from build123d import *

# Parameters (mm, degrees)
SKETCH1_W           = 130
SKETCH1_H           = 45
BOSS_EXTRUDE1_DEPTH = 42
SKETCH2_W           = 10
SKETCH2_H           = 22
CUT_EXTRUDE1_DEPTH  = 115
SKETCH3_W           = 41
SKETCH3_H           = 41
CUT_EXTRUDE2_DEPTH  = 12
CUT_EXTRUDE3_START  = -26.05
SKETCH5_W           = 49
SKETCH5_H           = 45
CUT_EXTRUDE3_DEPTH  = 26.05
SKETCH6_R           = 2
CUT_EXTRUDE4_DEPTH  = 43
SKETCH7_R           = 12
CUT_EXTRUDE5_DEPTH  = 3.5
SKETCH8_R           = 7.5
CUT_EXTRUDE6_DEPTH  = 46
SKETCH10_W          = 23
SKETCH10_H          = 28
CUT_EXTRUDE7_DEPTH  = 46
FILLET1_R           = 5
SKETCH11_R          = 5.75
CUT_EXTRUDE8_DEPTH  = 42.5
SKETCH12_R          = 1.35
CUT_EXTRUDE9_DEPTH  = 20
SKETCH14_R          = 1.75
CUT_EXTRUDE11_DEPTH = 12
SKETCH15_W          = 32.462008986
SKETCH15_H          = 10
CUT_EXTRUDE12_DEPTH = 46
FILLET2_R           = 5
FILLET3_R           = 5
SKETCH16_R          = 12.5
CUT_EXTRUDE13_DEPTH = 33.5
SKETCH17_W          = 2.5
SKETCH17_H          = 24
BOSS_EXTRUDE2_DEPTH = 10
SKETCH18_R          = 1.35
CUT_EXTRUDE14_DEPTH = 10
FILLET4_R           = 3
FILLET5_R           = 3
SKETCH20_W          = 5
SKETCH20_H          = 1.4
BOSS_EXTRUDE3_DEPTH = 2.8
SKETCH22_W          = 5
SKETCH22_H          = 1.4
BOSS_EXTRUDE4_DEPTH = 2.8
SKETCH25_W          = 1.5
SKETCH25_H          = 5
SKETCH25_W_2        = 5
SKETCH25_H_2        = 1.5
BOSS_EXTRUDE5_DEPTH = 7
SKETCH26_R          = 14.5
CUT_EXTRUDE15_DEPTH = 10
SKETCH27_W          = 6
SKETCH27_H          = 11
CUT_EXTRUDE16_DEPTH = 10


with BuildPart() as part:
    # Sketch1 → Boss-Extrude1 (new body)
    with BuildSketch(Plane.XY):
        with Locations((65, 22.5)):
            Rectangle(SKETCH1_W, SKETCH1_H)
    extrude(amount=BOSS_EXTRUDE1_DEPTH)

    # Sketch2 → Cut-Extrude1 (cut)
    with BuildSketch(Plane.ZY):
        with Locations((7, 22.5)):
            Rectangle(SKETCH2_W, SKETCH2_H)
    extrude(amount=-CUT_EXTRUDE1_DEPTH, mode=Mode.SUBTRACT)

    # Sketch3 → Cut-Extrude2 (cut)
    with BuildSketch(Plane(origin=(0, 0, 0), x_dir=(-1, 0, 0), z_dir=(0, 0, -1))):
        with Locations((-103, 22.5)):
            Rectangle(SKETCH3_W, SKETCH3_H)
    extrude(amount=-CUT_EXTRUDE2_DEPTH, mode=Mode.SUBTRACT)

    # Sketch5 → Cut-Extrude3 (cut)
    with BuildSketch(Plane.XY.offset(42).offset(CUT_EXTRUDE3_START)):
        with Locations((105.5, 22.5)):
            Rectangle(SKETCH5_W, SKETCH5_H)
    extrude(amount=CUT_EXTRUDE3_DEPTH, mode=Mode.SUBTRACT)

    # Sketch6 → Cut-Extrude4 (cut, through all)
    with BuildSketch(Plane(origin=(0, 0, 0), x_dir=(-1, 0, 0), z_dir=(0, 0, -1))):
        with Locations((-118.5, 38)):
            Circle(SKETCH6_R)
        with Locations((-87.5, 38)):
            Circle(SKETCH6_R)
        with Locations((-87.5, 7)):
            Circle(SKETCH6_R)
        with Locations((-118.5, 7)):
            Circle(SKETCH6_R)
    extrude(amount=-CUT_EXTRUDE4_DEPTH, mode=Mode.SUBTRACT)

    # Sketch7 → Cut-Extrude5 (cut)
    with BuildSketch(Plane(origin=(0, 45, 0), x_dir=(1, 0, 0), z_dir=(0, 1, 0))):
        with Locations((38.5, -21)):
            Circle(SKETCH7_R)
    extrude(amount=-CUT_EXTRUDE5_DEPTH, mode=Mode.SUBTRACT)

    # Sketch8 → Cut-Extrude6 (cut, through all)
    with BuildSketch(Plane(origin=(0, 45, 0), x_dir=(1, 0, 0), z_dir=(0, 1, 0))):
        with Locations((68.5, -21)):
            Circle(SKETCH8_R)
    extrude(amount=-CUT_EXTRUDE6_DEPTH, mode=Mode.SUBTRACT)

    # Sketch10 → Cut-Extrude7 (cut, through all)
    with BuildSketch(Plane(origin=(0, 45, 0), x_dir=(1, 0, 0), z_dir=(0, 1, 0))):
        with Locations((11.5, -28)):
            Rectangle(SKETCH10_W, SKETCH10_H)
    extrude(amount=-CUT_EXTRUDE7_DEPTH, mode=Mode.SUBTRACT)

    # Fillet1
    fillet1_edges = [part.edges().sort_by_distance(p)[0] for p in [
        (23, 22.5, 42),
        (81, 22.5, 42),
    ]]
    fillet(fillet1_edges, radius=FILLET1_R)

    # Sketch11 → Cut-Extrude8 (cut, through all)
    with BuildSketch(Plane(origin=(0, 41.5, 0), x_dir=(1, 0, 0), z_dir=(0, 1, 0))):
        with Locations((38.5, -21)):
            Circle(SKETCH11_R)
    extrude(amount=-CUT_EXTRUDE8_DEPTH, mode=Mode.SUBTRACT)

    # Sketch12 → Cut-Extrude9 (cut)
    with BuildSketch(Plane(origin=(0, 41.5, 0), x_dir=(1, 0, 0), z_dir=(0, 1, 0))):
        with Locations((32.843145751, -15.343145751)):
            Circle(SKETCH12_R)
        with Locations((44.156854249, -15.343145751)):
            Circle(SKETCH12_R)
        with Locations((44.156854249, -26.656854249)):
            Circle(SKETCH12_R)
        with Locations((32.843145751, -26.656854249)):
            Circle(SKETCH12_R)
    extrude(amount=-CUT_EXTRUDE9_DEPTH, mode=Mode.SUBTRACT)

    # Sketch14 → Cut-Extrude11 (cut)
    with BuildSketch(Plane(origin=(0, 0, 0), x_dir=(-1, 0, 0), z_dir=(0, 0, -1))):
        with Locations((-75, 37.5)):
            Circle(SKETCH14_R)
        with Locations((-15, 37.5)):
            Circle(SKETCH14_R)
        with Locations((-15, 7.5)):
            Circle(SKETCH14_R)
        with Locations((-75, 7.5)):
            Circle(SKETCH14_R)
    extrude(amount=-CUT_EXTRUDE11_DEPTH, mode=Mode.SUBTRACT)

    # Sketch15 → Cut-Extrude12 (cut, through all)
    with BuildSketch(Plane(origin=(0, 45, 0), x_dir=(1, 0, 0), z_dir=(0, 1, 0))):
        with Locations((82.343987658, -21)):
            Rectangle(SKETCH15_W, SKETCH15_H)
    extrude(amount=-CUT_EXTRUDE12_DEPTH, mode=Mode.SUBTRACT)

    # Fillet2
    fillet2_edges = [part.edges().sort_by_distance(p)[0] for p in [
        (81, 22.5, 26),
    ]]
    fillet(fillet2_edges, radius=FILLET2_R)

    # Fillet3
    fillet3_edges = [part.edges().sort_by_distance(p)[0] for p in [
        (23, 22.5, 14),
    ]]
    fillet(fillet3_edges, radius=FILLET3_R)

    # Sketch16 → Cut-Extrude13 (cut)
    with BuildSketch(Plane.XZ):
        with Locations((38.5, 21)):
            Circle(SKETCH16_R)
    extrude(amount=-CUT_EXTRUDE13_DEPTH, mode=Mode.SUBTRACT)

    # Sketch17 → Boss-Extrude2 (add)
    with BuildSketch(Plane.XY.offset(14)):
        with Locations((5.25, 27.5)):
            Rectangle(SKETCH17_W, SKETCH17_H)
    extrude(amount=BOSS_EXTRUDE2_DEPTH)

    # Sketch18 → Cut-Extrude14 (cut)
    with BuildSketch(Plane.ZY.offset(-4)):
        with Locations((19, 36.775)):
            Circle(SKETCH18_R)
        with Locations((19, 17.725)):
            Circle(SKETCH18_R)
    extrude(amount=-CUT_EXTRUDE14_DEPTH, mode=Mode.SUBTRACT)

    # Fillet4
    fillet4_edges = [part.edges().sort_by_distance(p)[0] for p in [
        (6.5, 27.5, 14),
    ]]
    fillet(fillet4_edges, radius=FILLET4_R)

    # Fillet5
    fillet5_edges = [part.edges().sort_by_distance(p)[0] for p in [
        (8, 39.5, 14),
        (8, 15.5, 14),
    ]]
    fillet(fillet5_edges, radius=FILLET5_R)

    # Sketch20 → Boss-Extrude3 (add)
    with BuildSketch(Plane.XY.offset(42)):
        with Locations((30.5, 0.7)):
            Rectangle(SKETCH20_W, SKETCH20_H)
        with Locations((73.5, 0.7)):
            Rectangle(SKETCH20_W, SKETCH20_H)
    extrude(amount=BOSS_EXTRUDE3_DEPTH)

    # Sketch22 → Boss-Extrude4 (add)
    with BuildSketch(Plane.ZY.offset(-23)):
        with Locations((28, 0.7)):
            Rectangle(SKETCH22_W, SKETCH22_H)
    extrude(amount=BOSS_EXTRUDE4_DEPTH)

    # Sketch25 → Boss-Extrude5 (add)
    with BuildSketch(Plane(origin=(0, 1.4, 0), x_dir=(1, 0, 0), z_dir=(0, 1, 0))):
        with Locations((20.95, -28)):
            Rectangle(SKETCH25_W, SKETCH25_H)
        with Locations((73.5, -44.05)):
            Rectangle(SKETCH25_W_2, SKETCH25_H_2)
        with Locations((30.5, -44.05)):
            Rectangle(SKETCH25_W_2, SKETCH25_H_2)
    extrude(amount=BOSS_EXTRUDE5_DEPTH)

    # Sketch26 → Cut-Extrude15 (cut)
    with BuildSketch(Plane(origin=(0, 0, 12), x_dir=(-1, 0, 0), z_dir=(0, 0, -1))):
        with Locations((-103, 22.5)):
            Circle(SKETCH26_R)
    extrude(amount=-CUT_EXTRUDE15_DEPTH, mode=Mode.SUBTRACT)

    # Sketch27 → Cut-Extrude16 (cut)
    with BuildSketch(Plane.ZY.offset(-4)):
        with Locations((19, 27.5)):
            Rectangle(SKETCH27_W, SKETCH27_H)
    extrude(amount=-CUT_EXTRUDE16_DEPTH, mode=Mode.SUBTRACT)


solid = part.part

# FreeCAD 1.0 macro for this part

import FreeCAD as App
import Part
import Sketcher


def edges_at(feature, points):
    """Names of the edges that pass closest to the given points."""
    edges = feature.Shape.Edges
    near = lambda p: min(range(len(edges)), key=lambda i: edges[i].distToShape(Part.Vertex(*p))[0])
    return sorted({f"Edge{near(p) + 1}" for p in points})

doc = App.newDocument("Part")
body = doc.addObject("PartDesign::Body", "Body")

sketch1 = body.newObject("Sketcher::SketchObject", "Sketch")
sketch1.AttachmentSupport = (doc.getObject("XY_Plane"), [""])
sketch1.MapMode = "FlatFace"
sketch1.addGeometry(Part.LineSegment(App.Vector(0, 45, 0), App.Vector(0, 0, 0)), False)
sketch1.addGeometry(Part.LineSegment(App.Vector(0, 0, 0), App.Vector(130, 0, 0)), False)
sketch1.addGeometry(Part.LineSegment(App.Vector(130, 0, 0), App.Vector(130, 45, 0)), False)
sketch1.addGeometry(Part.LineSegment(App.Vector(130, 45, 0), App.Vector(0, 45, 0)), False)
sketch1.addConstraint(Sketcher.Constraint("Coincident", 0, 2, 1, 1))
sketch1.addConstraint(Sketcher.Constraint("Coincident", 1, 2, 2, 1))
sketch1.addConstraint(Sketcher.Constraint("Coincident", 2, 2, 3, 1))
sketch1.addConstraint(Sketcher.Constraint("Coincident", 3, 2, 0, 1))
sketch1.addConstraint(Sketcher.Constraint("Vertical", 0))
sketch1.addConstraint(Sketcher.Constraint("Horizontal", 1))
sketch1.addConstraint(Sketcher.Constraint("Vertical", 2))
sketch1.addConstraint(Sketcher.Constraint("Horizontal", 3))
sketch1.addConstraint(Sketcher.Constraint("Coincident", 0, 2, -1, 1))
sketch1.addConstraint(Sketcher.Constraint("DistanceX", 1, 1, 1, 2, 130.0))
sketch1.addConstraint(Sketcher.Constraint("DistanceY", 0, 2, 0, 1, 45.0))
pad1 = body.newObject("PartDesign::Pad", "Pad")
pad1.Profile = sketch1
pad1.Length = 42

sketch2 = body.newObject("Sketcher::SketchObject", "Sketch001")
sketch2.AttachmentSupport = (doc.getObject("YZ_Plane"), [""])
sketch2.MapMode = "FlatFace"
sketch2.addGeometry(Part.LineSegment(App.Vector(34, 2, 0), App.Vector(12, 2, 0)), False)
sketch2.addGeometry(Part.LineSegment(App.Vector(12, 2, 0), App.Vector(12, 12, 0)), False)
sketch2.addGeometry(Part.LineSegment(App.Vector(12, 12, 0), App.Vector(34, 12, 0)), False)
sketch2.addGeometry(Part.LineSegment(App.Vector(34, 12, 0), App.Vector(34, 2, 0)), False)
sketch2.addConstraint(Sketcher.Constraint("Coincident", 0, 2, 1, 1))
sketch2.addConstraint(Sketcher.Constraint("Coincident", 1, 2, 2, 1))
sketch2.addConstraint(Sketcher.Constraint("Coincident", 2, 2, 3, 1))
sketch2.addConstraint(Sketcher.Constraint("Coincident", 3, 2, 0, 1))
sketch2.addConstraint(Sketcher.Constraint("Horizontal", 0))
sketch2.addConstraint(Sketcher.Constraint("Vertical", 1))
sketch2.addConstraint(Sketcher.Constraint("Horizontal", 2))
sketch2.addConstraint(Sketcher.Constraint("Vertical", 3))
sketch2.addConstraint(Sketcher.Constraint("DistanceX", 0, 2, 0, 1, 22.0))
sketch2.addConstraint(Sketcher.Constraint("DistanceY", 1, 1, 1, 2, 10.0))
sketch2.addConstraint(Sketcher.Constraint("DistanceY", -1, 1, 0, 2, 2.0))
sketch2.addConstraint(Sketcher.Constraint("DistanceX", -1, 1, 0, 2, 11.5))
pocket1 = body.newObject("PartDesign::Pocket", "Pocket")
pocket1.Profile = sketch2
pocket1.Length = 115
pocket1.Reversed = True

sketch3 = body.newObject("Sketcher::SketchObject", "Sketch002")
sketch3.AttachmentSupport = (doc.getObject("XY_Plane"), [""])
sketch3.MapMode = "FlatFace"
sketch3.addGeometry(Part.LineSegment(App.Vector(124, 43, 0), App.Vector(124, 2, 0)), False)
sketch3.addGeometry(Part.LineSegment(App.Vector(124, 2, 0), App.Vector(82, 2, 0)), False)
sketch3.addGeometry(Part.LineSegment(App.Vector(82, 2, 0), App.Vector(82, 43, 0)), False)
sketch3.addGeometry(Part.LineSegment(App.Vector(82, 43, 0), App.Vector(124, 43, 0)), False)
sketch3.addConstraint(Sketcher.Constraint("Coincident", 0, 2, 1, 1))
sketch3.addConstraint(Sketcher.Constraint("Coincident", 1, 2, 2, 1))
sketch3.addConstraint(Sketcher.Constraint("Coincident", 2, 2, 3, 1))
sketch3.addConstraint(Sketcher.Constraint("Coincident", 3, 2, 0, 1))
sketch3.addConstraint(Sketcher.Constraint("Vertical", 0))
sketch3.addConstraint(Sketcher.Constraint("Horizontal", 1))
sketch3.addConstraint(Sketcher.Constraint("Vertical", 2))
sketch3.addConstraint(Sketcher.Constraint("Horizontal", 3))
sketch3.addConstraint(Sketcher.Constraint("Equal", 3, 0))
sketch3.addConstraint(Sketcher.Constraint("DistanceX", 1, 2, 1, 1, 41.0))
sketch3.addConstraint(Sketcher.Constraint("DistanceY", -1, 1, 0, 2, 2.0))
sketch3.addConstraint(Sketcher.Constraint("DistanceX", -1, 1, 0, 2, 123.5))
pocket2 = body.newObject("PartDesign::Pocket", "Pocket001")
pocket2.Profile = sketch3
pocket2.Length = 12
pocket2.Reversed = True

sketch4 = body.newObject("Sketcher::SketchObject", "Sketch003")
sketch4.AttachmentSupport = (doc.getObject("XY_Plane"), [""])
sketch4.MapMode = "FlatFace"
sketch4.AttachmentOffset = App.Placement(App.Vector(0, 0, 15.95), App.Rotation())
sketch4.addGeometry(Part.LineSegment(App.Vector(81, 45, 0), App.Vector(81, 0, 0)), False)
sketch4.addGeometry(Part.LineSegment(App.Vector(81, 0, 0), App.Vector(130, 0, 0)), False)
sketch4.addGeometry(Part.LineSegment(App.Vector(130, 0, 0), App.Vector(130, 45, 0)), False)
sketch4.addGeometry(Part.LineSegment(App.Vector(130, 45, 0), App.Vector(81, 45, 0)), False)
sketch4.addConstraint(Sketcher.Constraint("Coincident", 0, 2, 1, 1))
sketch4.addConstraint(Sketcher.Constraint("Coincident", 1, 2, 2, 1))
sketch4.addConstraint(Sketcher.Constraint("Coincident", 2, 2, 3, 1))
sketch4.addConstraint(Sketcher.Constraint("Coincident", 3, 2, 0, 1))
sketch4.addConstraint(Sketcher.Constraint("Vertical", 0))
sketch4.addConstraint(Sketcher.Constraint("Horizontal", 1))
sketch4.addConstraint(Sketcher.Constraint("Vertical", 2))
sketch4.addConstraint(Sketcher.Constraint("Horizontal", 3))
sketch4.addConstraint(Sketcher.Constraint("PointOnObject", 0, 2, -1))
sketch4.addConstraint(Sketcher.Constraint("DistanceX", 1, 1, 1, 2, 49.0))
sketch4.addConstraint(Sketcher.Constraint("DistanceY", 0, 2, 0, 1, 45.0))
sketch4.addConstraint(Sketcher.Constraint("DistanceX", -1, 1, 0, 2, 81.0))
pocket3 = body.newObject("PartDesign::Pocket", "Pocket002")
pocket3.Profile = sketch4
pocket3.Length = 26.05
pocket3.Reversed = True

sketch5 = body.newObject("Sketcher::SketchObject", "Sketch004")
sketch5.AttachmentSupport = (doc.getObject("XY_Plane"), [""])
sketch5.MapMode = "FlatFace"
sketch5.addGeometry(Part.Circle(App.Vector(118.5, 38, 0), App.Vector(0, 0, 1), 2), False)
sketch5.addGeometry(Part.Circle(App.Vector(87.5, 38, 0), App.Vector(0, 0, 1), 2), False)
sketch5.addGeometry(Part.Circle(App.Vector(87.5, 7, 0), App.Vector(0, 0, 1), 2), False)
sketch5.addGeometry(Part.Circle(App.Vector(118.5, 7, 0), App.Vector(0, 0, 1), 2), False)
sketch5.addConstraint(Sketcher.Constraint("Equal", 0, 1))
sketch5.addConstraint(Sketcher.Constraint("Equal", 1, 2))
sketch5.addConstraint(Sketcher.Constraint("Equal", 2, 3))
sketch5.addConstraint(Sketcher.Constraint("Horizontal", 0, 3, 1, 3))
sketch5.addConstraint(Sketcher.Constraint("Horizontal", 2, 3, 3, 3))
sketch5.addConstraint(Sketcher.Constraint("Vertical", 1, 3, 2, 3))
sketch5.addConstraint(Sketcher.Constraint("Vertical", 0, 3, 3, 3))
sketch5.addConstraint(Sketcher.Constraint("Diameter", 0, 4.0))
sketch5.addConstraint(Sketcher.Constraint("DistanceY", -1, 1, 0, 3, 38.0))
sketch5.addConstraint(Sketcher.Constraint("DistanceY", -1, 1, 2, 3, 7.0))
sketch5.addConstraint(Sketcher.Constraint("DistanceX", 1, 3, 0, 3, 31.0))
sketch5.addConstraint(Sketcher.Constraint("DistanceX", -1, 1, 0, 3, 118.5))
pocket4 = body.newObject("PartDesign::Pocket", "Pocket003")
pocket4.Profile = sketch5
pocket4.Type = "ThroughAll"
pocket4.Reversed = True

sketch6 = body.newObject("Sketcher::SketchObject", "Sketch005")
sketch6.AttachmentSupport = (doc.getObject("XZ_Plane"), [""])
sketch6.MapMode = "FlatFace"
sketch6.AttachmentOffset = App.Placement(App.Vector(0, 0, -45), App.Rotation())
sketch6.addGeometry(Part.Circle(App.Vector(38, 21, 0), App.Vector(0, 0, 1), 12), False)
sketch6.addConstraint(Sketcher.Constraint("Diameter", 0, 24.0))
sketch6.addConstraint(Sketcher.Constraint("DistanceY", -1, 1, 0, 3, 21.0))
sketch6.addConstraint(Sketcher.Constraint("DistanceX", -1, 1, 0, 3, 38.5))
pocket5 = body.newObject("PartDesign::Pocket", "Pocket004")
pocket5.Profile = sketch6
pocket5.Length = 3.5
pocket5.Reversed = True

sketch7 = body.newObject("Sketcher::SketchObject", "Sketch006")
sketch7.AttachmentSupport = (doc.getObject("XZ_Plane"), [""])
sketch7.MapMode = "FlatFace"
sketch7.AttachmentOffset = App.Placement(App.Vector(0, 0, -45), App.Rotation())
sketch7.addGeometry(Part.Circle(App.Vector(68, 21, 0), App.Vector(0, 0, 1), 8), False)
sketch7.addConstraint(Sketcher.Constraint("Diameter", 0, 15.0))
sketch7.addConstraint(Sketcher.Constraint("DistanceY", -1, 1, 0, 3, 21.0))
sketch7.addConstraint(Sketcher.Constraint("DistanceX", -1, 1, 0, 3, 68.5))
pocket6 = body.newObject("PartDesign::Pocket", "Pocket005")
pocket6.Profile = sketch7
pocket6.Type = "ThroughAll"
pocket6.Reversed = True

sketch8 = body.newObject("Sketcher::SketchObject", "Sketch007")
sketch8.AttachmentSupport = (doc.getObject("XZ_Plane"), [""])
sketch8.MapMode = "FlatFace"
sketch8.AttachmentOffset = App.Placement(App.Vector(0, 0, -45), App.Rotation())
sketch8.addGeometry(Part.LineSegment(App.Vector(0, 14, 0), App.Vector(0, 42, 0)), False)
sketch8.addGeometry(Part.LineSegment(App.Vector(0, 42, 0), App.Vector(23, 42, 0)), False)
sketch8.addGeometry(Part.LineSegment(App.Vector(23, 42, 0), App.Vector(23, 14, 0)), False)
sketch8.addGeometry(Part.LineSegment(App.Vector(23, 14, 0), App.Vector(0, 14, 0)), False)
sketch8.addConstraint(Sketcher.Constraint("Coincident", 0, 2, 1, 1))
sketch8.addConstraint(Sketcher.Constraint("Coincident", 1, 2, 2, 1))
sketch8.addConstraint(Sketcher.Constraint("Coincident", 2, 2, 3, 1))
sketch8.addConstraint(Sketcher.Constraint("Coincident", 3, 2, 0, 1))
sketch8.addConstraint(Sketcher.Constraint("Vertical", 0))
sketch8.addConstraint(Sketcher.Constraint("Horizontal", 1))
sketch8.addConstraint(Sketcher.Constraint("Vertical", 2))
sketch8.addConstraint(Sketcher.Constraint("Horizontal", 3))
sketch8.addConstraint(Sketcher.Constraint("PointOnObject", 0, 2, -2))
sketch8.addConstraint(Sketcher.Constraint("DistanceX", 1, 1, 1, 2, 23.0))
sketch8.addConstraint(Sketcher.Constraint("DistanceY", 0, 1, 0, 2, 28.0))
sketch8.addConstraint(Sketcher.Constraint("DistanceY", -1, 1, 0, 2, 42.0))
pocket7 = body.newObject("PartDesign::Pocket", "Pocket006")
pocket7.Profile = sketch8
pocket7.Type = "ThroughAll"
pocket7.Reversed = True
doc.recompute()

fillet = body.newObject("PartDesign::Fillet", "Fillet")
fillet.Base = (pocket7, edges_at(pocket7, [(23, 22.5, 42), (81, 22.5, 42)]))
fillet.Radius = 5

sketch9 = body.newObject("Sketcher::SketchObject", "Sketch008")
sketch9.AttachmentSupport = (doc.getObject("XZ_Plane"), [""])
sketch9.MapMode = "FlatFace"
sketch9.AttachmentOffset = App.Placement(App.Vector(0, 0, -41.5), App.Rotation())
sketch9.addGeometry(Part.Circle(App.Vector(38, 21, 0), App.Vector(0, 0, 1), 6), False)
sketch9.addConstraint(Sketcher.Constraint("Diameter", 0, 11.5))
sketch9.addConstraint(Sketcher.Constraint("DistanceY", -1, 1, 0, 3, 21.0))
sketch9.addConstraint(Sketcher.Constraint("DistanceX", -1, 1, 0, 3, 38.5))
pocket8 = body.newObject("PartDesign::Pocket", "Pocket007")
pocket8.Profile = sketch9
pocket8.Type = "ThroughAll"
pocket8.Reversed = True

sketch10 = body.newObject("Sketcher::SketchObject", "Sketch009")
sketch10.AttachmentSupport = (doc.getObject("XZ_Plane"), [""])
sketch10.MapMode = "FlatFace"
sketch10.AttachmentOffset = App.Placement(App.Vector(0, 0, -41.5), App.Rotation())
sketch10.addGeometry(Part.Circle(App.Vector(32.8, 15.3, 0), App.Vector(0, 0, 1), 1.4), False)
sketch10.addGeometry(Part.Circle(App.Vector(44.2, 15.3, 0), App.Vector(0, 0, 1), 1.4), False)
sketch10.addGeometry(Part.Circle(App.Vector(44.2, 26.7, 0), App.Vector(0, 0, 1), 1.4), False)
sketch10.addGeometry(Part.Circle(App.Vector(32.8, 26.7, 0), App.Vector(0, 0, 1), 1.4), False)
sketch10.addConstraint(Sketcher.Constraint("Equal", 0, 1))
sketch10.addConstraint(Sketcher.Constraint("Equal", 1, 2))
sketch10.addConstraint(Sketcher.Constraint("Equal", 2, 3))
sketch10.addConstraint(Sketcher.Constraint("Horizontal", 0, 3, 1, 3))
sketch10.addConstraint(Sketcher.Constraint("Horizontal", 2, 3, 3, 3))
sketch10.addConstraint(Sketcher.Constraint("Vertical", 1, 3, 2, 3))
sketch10.addConstraint(Sketcher.Constraint("Vertical", 0, 3, 3, 3))
sketch10.addConstraint(Sketcher.Constraint("Diameter", 0, 2.7))
sketch10.addConstraint(Sketcher.Constraint("DistanceX", 0, 3, 1, 3, 11.313708))
sketch10.addConstraint(Sketcher.Constraint("DistanceY", 1, 3, 2, 3, 11.313708))
sketch10.addConstraint(Sketcher.Constraint("DistanceX", -1, 1, 0, 3, 32.843146))
sketch10.addConstraint(Sketcher.Constraint("DistanceY", -1, 1, 0, 3, 15.343146))
pocket9 = body.newObject("PartDesign::Pocket", "Pocket008")
pocket9.Profile = sketch10
pocket9.Length = 20
pocket9.Reversed = True

sketch11 = body.newObject("Sketcher::SketchObject", "Sketch010")
sketch11.AttachmentSupport = (doc.getObject("XY_Plane"), [""])
sketch11.MapMode = "FlatFace"
sketch11.addGeometry(Part.Circle(App.Vector(75, 37.5, 0), App.Vector(0, 0, 1), 1.8), False)
sketch11.addGeometry(Part.Circle(App.Vector(15, 37.5, 0), App.Vector(0, 0, 1), 1.8), False)
sketch11.addGeometry(Part.Circle(App.Vector(15, 7.5, 0), App.Vector(0, 0, 1), 1.8), False)
sketch11.addGeometry(Part.Circle(App.Vector(75, 7.5, 0), App.Vector(0, 0, 1), 1.8), False)
sketch11.addConstraint(Sketcher.Constraint("Equal", 0, 1))
sketch11.addConstraint(Sketcher.Constraint("Equal", 1, 2))
sketch11.addConstraint(Sketcher.Constraint("Equal", 2, 3))
sketch11.addConstraint(Sketcher.Constraint("Horizontal", 0, 3, 1, 3))
sketch11.addConstraint(Sketcher.Constraint("Horizontal", 2, 3, 3, 3))
sketch11.addConstraint(Sketcher.Constraint("Vertical", 1, 3, 2, 3))
sketch11.addConstraint(Sketcher.Constraint("Vertical", 0, 3, 3, 3))
sketch11.addConstraint(Sketcher.Constraint("Diameter", 0, 3.5))
sketch11.addConstraint(Sketcher.Constraint("DistanceX", -1, 1, 0, 3, 75.0))
sketch11.addConstraint(Sketcher.Constraint("DistanceX", -1, 1, 1, 3, 15.0))
sketch11.addConstraint(Sketcher.Constraint("DistanceY", 2, 3, 1, 3, 30.0))
sketch11.addConstraint(Sketcher.Constraint("DistanceY", -1, 1, 0, 3, 37.5))
pocket10 = body.newObject("PartDesign::Pocket", "Pocket009")
pocket10.Profile = sketch11
pocket10.Length = 12
pocket10.Reversed = True

sketch12 = body.newObject("Sketcher::SketchObject", "Sketch011")
sketch12.AttachmentSupport = (doc.getObject("XZ_Plane"), [""])
sketch12.MapMode = "FlatFace"
sketch12.AttachmentOffset = App.Placement(App.Vector(0, 0, -45), App.Rotation())
sketch12.addGeometry(Part.LineSegment(App.Vector(66, 16, 0), App.Vector(66, 26, 0)), False)
sketch12.addGeometry(Part.LineSegment(App.Vector(66, 26, 0), App.Vector(99, 26, 0)), False)
sketch12.addGeometry(Part.LineSegment(App.Vector(99, 26, 0), App.Vector(99, 16, 0)), False)
sketch12.addGeometry(Part.LineSegment(App.Vector(99, 16, 0), App.Vector(66, 16, 0)), False)
sketch12.addConstraint(Sketcher.Constraint("Coincident", 0, 2, 1, 1))
sketch12.addConstraint(Sketcher.Constraint("Coincident", 1, 2, 2, 1))
sketch12.addConstraint(Sketcher.Constraint("Coincident", 2, 2, 3, 1))
sketch12.addConstraint(Sketcher.Constraint("Coincident", 3, 2, 0, 1))
sketch12.addConstraint(Sketcher.Constraint("Vertical", 0))
sketch12.addConstraint(Sketcher.Constraint("Horizontal", 1))
sketch12.addConstraint(Sketcher.Constraint("Vertical", 2))
sketch12.addConstraint(Sketcher.Constraint("Horizontal", 3))
sketch12.addConstraint(Sketcher.Constraint("DistanceY", 0, 1, 0, 2, 10.0))
sketch12.addConstraint(Sketcher.Constraint("DistanceY", -1, 1, 0, 2, 26.0))
sketch12.addConstraint(Sketcher.Constraint("DistanceX", 1, 1, 1, 2, 32.462009))
sketch12.addConstraint(Sketcher.Constraint("DistanceX", -1, 1, 0, 2, 66.112983))
pocket11 = body.newObject("PartDesign::Pocket", "Pocket010")
pocket11.Profile = sketch12
pocket11.Type = "ThroughAll"
pocket11.Reversed = True
doc.recompute()

fillet2 = body.newObject("PartDesign::Fillet", "Fillet001")
fillet2.Base = (pocket11, edges_at(pocket11, [(81, 22.5, 26)]))
fillet2.Radius = 5
doc.recompute()

fillet3 = body.newObject("PartDesign::Fillet", "Fillet002")
fillet3.Base = (fillet2, edges_at(fillet2, [(23, 22.5, 14)]))
fillet3.Radius = 5

sketch13 = body.newObject("Sketcher::SketchObject", "Sketch012")
sketch13.AttachmentSupport = (doc.getObject("XZ_Plane"), [""])
sketch13.MapMode = "FlatFace"
sketch13.addGeometry(Part.Circle(App.Vector(38, 21, 0), App.Vector(0, 0, 1), 12), False)
sketch13.addConstraint(Sketcher.Constraint("Diameter", 0, 25.0))
sketch13.addConstraint(Sketcher.Constraint("DistanceY", -1, 1, 0, 3, 21.0))
sketch13.addConstraint(Sketcher.Constraint("DistanceX", -1, 1, 0, 3, 38.5))
pocket12 = body.newObject("PartDesign::Pocket", "Pocket011")
pocket12.Profile = sketch13
pocket12.Length = 33.5

sketch14 = body.newObject("Sketcher::SketchObject", "Sketch013")
sketch14.AttachmentSupport = (doc.getObject("XY_Plane"), [""])
sketch14.MapMode = "FlatFace"
sketch14.AttachmentOffset = App.Placement(App.Vector(0, 0, 14), App.Rotation())
sketch14.addGeometry(Part.LineSegment(App.Vector(4, 39.5, 0), App.Vector(4, 15.5, 0)), False)
sketch14.addGeometry(Part.LineSegment(App.Vector(4, 15.5, 0), App.Vector(6.5, 15.5, 0)), False)
sketch14.addGeometry(Part.LineSegment(App.Vector(6.5, 15.5, 0), App.Vector(6.5, 39.5, 0)), False)
sketch14.addGeometry(Part.LineSegment(App.Vector(6.5, 39.5, 0), App.Vector(4, 39.5, 0)), False)
sketch14.addConstraint(Sketcher.Constraint("Coincident", 0, 2, 1, 1))
sketch14.addConstraint(Sketcher.Constraint("Coincident", 1, 2, 2, 1))
sketch14.addConstraint(Sketcher.Constraint("Coincident", 2, 2, 3, 1))
sketch14.addConstraint(Sketcher.Constraint("Coincident", 3, 2, 0, 1))
sketch14.addConstraint(Sketcher.Constraint("Vertical", 0))
sketch14.addConstraint(Sketcher.Constraint("Horizontal", 1))
sketch14.addConstraint(Sketcher.Constraint("Vertical", 2))
sketch14.addConstraint(Sketcher.Constraint("Horizontal", 3))
sketch14.addConstraint(Sketcher.Constraint("DistanceY", 0, 2, 0, 1, 24.0))
sketch14.addConstraint(Sketcher.Constraint("DistanceX", 1, 1, 1, 2, 2.5))
sketch14.addConstraint(Sketcher.Constraint("DistanceX", -1, 1, 0, 2, 4.0))
sketch14.addConstraint(Sketcher.Constraint("DistanceY", -1, 1, 0, 2, 15.5))
pad2 = body.newObject("PartDesign::Pad", "Pad001")
pad2.Profile = sketch14
pad2.Length = 10

sketch15 = body.newObject("Sketcher::SketchObject", "Sketch014")
sketch15.AttachmentSupport = (doc.getObject("YZ_Plane"), [""])
sketch15.MapMode = "FlatFace"
sketch15.AttachmentOffset = App.Placement(App.Vector(0, 0, 4), App.Rotation())
sketch15.addGeometry(Part.Circle(App.Vector(36.8, 19, 0), App.Vector(0, 0, 1), 1.4), False)
sketch15.addGeometry(Part.Circle(App.Vector(17.7, 19, 0), App.Vector(0, 0, 1), 1.4), False)
sketch15.addConstraint(Sketcher.Constraint("Equal", 0, 1))
sketch15.addConstraint(Sketcher.Constraint("Horizontal", 0, 3, 1, 3))
sketch15.addConstraint(Sketcher.Constraint("Diameter", 0, 2.7))
sketch15.addConstraint(Sketcher.Constraint("DistanceY", -1, 1, 0, 3, 19.0))
sketch15.addConstraint(Sketcher.Constraint("DistanceX", 1, 3, 0, 3, 19.05))
sketch15.addConstraint(Sketcher.Constraint("DistanceX", -1, 1, 0, 3, 36.775))
pocket13 = body.newObject("PartDesign::Pocket", "Pocket012")
pocket13.Profile = sketch15
pocket13.Length = 10
pocket13.Reversed = True
doc.recompute()

fillet4 = body.newObject("PartDesign::Fillet", "Fillet003")
fillet4.Base = (pocket13, edges_at(pocket13, [(6.5, 27.5, 14)]))
fillet4.Radius = 3
doc.recompute()

fillet5 = body.newObject("PartDesign::Fillet", "Fillet004")
fillet5.Base = (fillet4, edges_at(fillet4, [(6.75, 39.5, 14), (6.75, 15.5, 14)]))
fillet5.Radius = 3

sketch16 = body.newObject("Sketcher::SketchObject", "Sketch015")
sketch16.AttachmentSupport = (doc.getObject("XY_Plane"), [""])
sketch16.MapMode = "FlatFace"
sketch16.AttachmentOffset = App.Placement(App.Vector(0, 0, 42), App.Rotation())
sketch16.addGeometry(Part.LineSegment(App.Vector(28, 1.4, 0), App.Vector(28, 0, 0)), False)
sketch16.addGeometry(Part.LineSegment(App.Vector(28, 0, 0), App.Vector(33, 0, 0)), False)
sketch16.addGeometry(Part.LineSegment(App.Vector(33, 0, 0), App.Vector(33, 1.4, 0)), False)
sketch16.addGeometry(Part.LineSegment(App.Vector(33, 1.4, 0), App.Vector(28, 1.4, 0)), False)
sketch16.addGeometry(Part.LineSegment(App.Vector(71, 1.4, 0), App.Vector(71, 0, 0)), False)
sketch16.addGeometry(Part.LineSegment(App.Vector(71, 0, 0), App.Vector(76, 0, 0)), False)
sketch16.addGeometry(Part.LineSegment(App.Vector(76, 0, 0), App.Vector(76, 1.4, 0)), False)
sketch16.addGeometry(Part.LineSegment(App.Vector(76, 1.4, 0), App.Vector(71, 1.4, 0)), False)
sketch16.addConstraint(Sketcher.Constraint("Coincident", 0, 2, 1, 1))
sketch16.addConstraint(Sketcher.Constraint("Coincident", 1, 2, 2, 1))
sketch16.addConstraint(Sketcher.Constraint("Coincident", 2, 2, 3, 1))
sketch16.addConstraint(Sketcher.Constraint("Coincident", 3, 2, 0, 1))
sketch16.addConstraint(Sketcher.Constraint("Coincident", 4, 2, 5, 1))
sketch16.addConstraint(Sketcher.Constraint("Coincident", 5, 2, 6, 1))
sketch16.addConstraint(Sketcher.Constraint("Coincident", 6, 2, 7, 1))
sketch16.addConstraint(Sketcher.Constraint("Coincident", 7, 2, 4, 1))
sketch16.addConstraint(Sketcher.Constraint("Vertical", 0))
sketch16.addConstraint(Sketcher.Constraint("Horizontal", 1))
sketch16.addConstraint(Sketcher.Constraint("Vertical", 2))
sketch16.addConstraint(Sketcher.Constraint("Horizontal", 3))
sketch16.addConstraint(Sketcher.Constraint("Vertical", 4))
sketch16.addConstraint(Sketcher.Constraint("Horizontal", 5))
sketch16.addConstraint(Sketcher.Constraint("Vertical", 6))
sketch16.addConstraint(Sketcher.Constraint("Horizontal", 7))
sketch16.addConstraint(Sketcher.Constraint("PointOnObject", 0, 2, -1))
sketch16.addConstraint(Sketcher.Constraint("PointOnObject", 4, 2, -1))
sketch16.addConstraint(Sketcher.Constraint("Horizontal", 3, 2, 6, 2))
sketch16.addConstraint(Sketcher.Constraint("Equal", 3, 5))
sketch16.addConstraint(Sketcher.Constraint("DistanceX", 1, 1, 1, 2, 5.0))
sketch16.addConstraint(Sketcher.Constraint("DistanceY", 0, 2, 0, 1, 1.4))
sketch16.addConstraint(Sketcher.Constraint("DistanceX", -1, 1, 0, 2, 28.0))
sketch16.addConstraint(Sketcher.Constraint("DistanceX", -1, 1, 4, 2, 71.0))
pad3 = body.newObject("PartDesign::Pad", "Pad002")
pad3.Profile = sketch16
pad3.Length = 2.8

sketch17 = body.newObject("Sketcher::SketchObject", "Sketch016")
sketch17.AttachmentSupport = (doc.getObject("YZ_Plane"), [""])
sketch17.MapMode = "FlatFace"
sketch17.AttachmentOffset = App.Placement(App.Vector(0, 0, 23), App.Rotation())
sketch17.addGeometry(Part.LineSegment(App.Vector(1.4, 25.5, 0), App.Vector(0, 25.5, 0)), False)
sketch17.addGeometry(Part.LineSegment(App.Vector(0, 25.5, 0), App.Vector(0, 30.5, 0)), False)
sketch17.addGeometry(Part.LineSegment(App.Vector(0, 30.5, 0), App.Vector(1.4, 30.5, 0)), False)
sketch17.addGeometry(Part.LineSegment(App.Vector(1.4, 30.5, 0), App.Vector(1.4, 25.5, 0)), False)
sketch17.addConstraint(Sketcher.Constraint("Coincident", 0, 2, 1, 1))
sketch17.addConstraint(Sketcher.Constraint("Coincident", 1, 2, 2, 1))
sketch17.addConstraint(Sketcher.Constraint("Coincident", 2, 2, 3, 1))
sketch17.addConstraint(Sketcher.Constraint("Coincident", 3, 2, 0, 1))
sketch17.addConstraint(Sketcher.Constraint("Horizontal", 0))
sketch17.addConstraint(Sketcher.Constraint("Vertical", 1))
sketch17.addConstraint(Sketcher.Constraint("Horizontal", 2))
sketch17.addConstraint(Sketcher.Constraint("Vertical", 3))
sketch17.addConstraint(Sketcher.Constraint("PointOnObject", 0, 2, -2))
sketch17.addConstraint(Sketcher.Constraint("DistanceY", 1, 1, 1, 2, 5.0))
sketch17.addConstraint(Sketcher.Constraint("DistanceX", 0, 2, 0, 1, 1.4))
sketch17.addConstraint(Sketcher.Constraint("DistanceY", -1, 1, 0, 2, 25.5))
pad4 = body.newObject("PartDesign::Pad", "Pad003")
pad4.Profile = sketch17
pad4.Length = 2.8
pad4.Reversed = True

sketch18 = body.newObject("Sketcher::SketchObject", "Sketch017")
sketch18.AttachmentSupport = (doc.getObject("XZ_Plane"), [""])
sketch18.MapMode = "FlatFace"
sketch18.AttachmentOffset = App.Placement(App.Vector(0, 0, -1.4), App.Rotation())
sketch18.addGeometry(Part.LineSegment(App.Vector(20.2, 25.5, 0), App.Vector(20.2, 30.5, 0)), False)
sketch18.addGeometry(Part.LineSegment(App.Vector(20.2, 30.5, 0), App.Vector(21.7, 30.5, 0)), False)
sketch18.addGeometry(Part.LineSegment(App.Vector(21.7, 30.5, 0), App.Vector(21.7, 25.5, 0)), False)
sketch18.addGeometry(Part.LineSegment(App.Vector(21.7, 25.5, 0), App.Vector(20.2, 25.5, 0)), False)
sketch18.addGeometry(Part.LineSegment(App.Vector(71, 43.3, 0), App.Vector(71, 44.8, 0)), False)
sketch18.addGeometry(Part.LineSegment(App.Vector(71, 44.8, 0), App.Vector(76, 44.8, 0)), False)
sketch18.addGeometry(Part.LineSegment(App.Vector(76, 44.8, 0), App.Vector(76, 43.3, 0)), False)
sketch18.addGeometry(Part.LineSegment(App.Vector(76, 43.3, 0), App.Vector(71, 43.3, 0)), False)
sketch18.addGeometry(Part.LineSegment(App.Vector(28, 43.3, 0), App.Vector(28, 44.8, 0)), False)
sketch18.addGeometry(Part.LineSegment(App.Vector(28, 44.8, 0), App.Vector(33, 44.8, 0)), False)
sketch18.addGeometry(Part.LineSegment(App.Vector(33, 44.8, 0), App.Vector(33, 43.3, 0)), False)
sketch18.addGeometry(Part.LineSegment(App.Vector(33, 43.3, 0), App.Vector(28, 43.3, 0)), False)
sketch18.addConstraint(Sketcher.Constraint("Coincident", 0, 2, 1, 1))
sketch18.addConstraint(Sketcher.Constraint("Coincident", 1, 2, 2, 1))
sketch18.addConstraint(Sketcher.Constraint("Coincident", 2, 2, 3, 1))
sketch18.addConstraint(Sketcher.Constraint("Coincident", 3, 2, 0, 1))
sketch18.addConstraint(Sketcher.Constraint("Coincident", 4, 2, 5, 1))
sketch18.addConstraint(Sketcher.Constraint("Coincident", 5, 2, 6, 1))
sketch18.addConstraint(Sketcher.Constraint("Coincident", 6, 2, 7, 1))
sketch18.addConstraint(Sketcher.Constraint("Coincident", 7, 2, 4, 1))
sketch18.addConstraint(Sketcher.Constraint("Coincident", 8, 2, 9, 1))
sketch18.addConstraint(Sketcher.Constraint("Coincident", 9, 2, 10, 1))
sketch18.addConstraint(Sketcher.Constraint("Coincident", 10, 2, 11, 1))
sketch18.addConstraint(Sketcher.Constraint("Coincident", 11, 2, 8, 1))
sketch18.addConstraint(Sketcher.Constraint("Vertical", 0))
sketch18.addConstraint(Sketcher.Constraint("Horizontal", 1))
sketch18.addConstraint(Sketcher.Constraint("Vertical", 2))
sketch18.addConstraint(Sketcher.Constraint("Horizontal", 3))
sketch18.addConstraint(Sketcher.Constraint("Vertical", 4))
sketch18.addConstraint(Sketcher.Constraint("Horizontal", 5))
sketch18.addConstraint(Sketcher.Constraint("Vertical", 6))
sketch18.addConstraint(Sketcher.Constraint("Horizontal", 7))
sketch18.addConstraint(Sketcher.Constraint("Vertical", 8))
sketch18.addConstraint(Sketcher.Constraint("Horizontal", 9))
sketch18.addConstraint(Sketcher.Constraint("Vertical", 10))
sketch18.addConstraint(Sketcher.Constraint("Horizontal", 11))
sketch18.addConstraint(Sketcher.Constraint("Horizontal", 5, 2, 8, 2))
sketch18.addConstraint(Sketcher.Constraint("Horizontal", 7, 2, 10, 2))
sketch18.addConstraint(Sketcher.Constraint("Equal", 7, 9))
sketch18.addConstraint(Sketcher.Constraint("Equal", 11, 0))
sketch18.addConstraint(Sketcher.Constraint("Equal", 3, 4))
sketch18.addConstraint(Sketcher.Constraint("DistanceX", 5, 1, 5, 2, 5.0))
sketch18.addConstraint(Sketcher.Constraint("DistanceX", 1, 1, 1, 2, 1.5))
sketch18.addConstraint(Sketcher.Constraint("DistanceX", -1, 1, 4, 2, 71.0))
sketch18.addConstraint(Sketcher.Constraint("DistanceX", -1, 1, 8, 2, 28.0))
sketch18.addConstraint(Sketcher.Constraint("DistanceX", -1, 1, 0, 2, 20.2))
sketch18.addConstraint(Sketcher.Constraint("DistanceY", -1, 1, 0, 2, 30.5))
sketch18.addConstraint(Sketcher.Constraint("DistanceY", -1, 1, 4, 2, 44.8))
pad5 = body.newObject("PartDesign::Pad", "Pad004")
pad5.Profile = sketch18
pad5.Length = 7
pad5.Reversed = True

sketch19 = body.newObject("Sketcher::SketchObject", "Sketch018")
sketch19.AttachmentSupport = (doc.getObject("XY_Plane"), [""])
sketch19.MapMode = "FlatFace"
sketch19.AttachmentOffset = App.Placement(App.Vector(0, 0, 12), App.Rotation())
sketch19.addGeometry(Part.Circle(App.Vector(103, 22, 0), App.Vector(0, 0, 1), 14), False)
sketch19.addConstraint(Sketcher.Constraint("Diameter", 0, 29.0))
sketch19.addConstraint(Sketcher.Constraint("DistanceX", -1, 1, 0, 3, 103.0))
sketch19.addConstraint(Sketcher.Constraint("DistanceY", -1, 1, 0, 3, 22.5))
pocket14 = body.newObject("PartDesign::Pocket", "Pocket013")
pocket14.Profile = sketch19
pocket14.Length = 10
pocket14.Reversed = True

sketch20 = body.newObject("Sketcher::SketchObject", "Sketch019")
sketch20.AttachmentSupport = (doc.getObject("YZ_Plane"), [""])
sketch20.MapMode = "FlatFace"
sketch20.AttachmentOffset = App.Placement(App.Vector(0, 0, 4), App.Rotation())
sketch20.addGeometry(Part.LineSegment(App.Vector(33, 16, 0), App.Vector(22, 16, 0)), False)
sketch20.addGeometry(Part.LineSegment(App.Vector(22, 16, 0), App.Vector(22, 22, 0)), False)
sketch20.addGeometry(Part.LineSegment(App.Vector(22, 22, 0), App.Vector(33, 22, 0)), False)
sketch20.addGeometry(Part.LineSegment(App.Vector(33, 22, 0), App.Vector(33, 16, 0)), False)
sketch20.addConstraint(Sketcher.Constraint("Coincident", 0, 2, 1, 1))
sketch20.addConstraint(Sketcher.Constraint("Coincident", 1, 2, 2, 1))
sketch20.addConstraint(Sketcher.Constraint("Coincident", 2, 2, 3, 1))
sketch20.addConstraint(Sketcher.Constraint("Coincident", 3, 2, 0, 1))
sketch20.addConstraint(Sketcher.Constraint("Horizontal", 0))
sketch20.addConstraint(Sketcher.Constraint("Vertical", 1))
sketch20.addConstraint(Sketcher.Constraint("Horizontal", 2))
sketch20.addConstraint(Sketcher.Constraint("Vertical", 3))
sketch20.addConstraint(Sketcher.Constraint("DistanceX", 0, 2, 0, 1, 11.0))
sketch20.addConstraint(Sketcher.Constraint("DistanceY", 1, 1, 1, 2, 6.0))
sketch20.addConstraint(Sketcher.Constraint("DistanceX", -1, 1, 0, 2, 22.0))
sketch20.addConstraint(Sketcher.Constraint("DistanceY", -1, 1, 0, 2, 16.0))
pocket15 = body.newObject("PartDesign::Pocket", "Pocket014")
pocket15.Profile = sketch20
pocket15.Length = 10
pocket15.Reversed = True

doc.recompute()
